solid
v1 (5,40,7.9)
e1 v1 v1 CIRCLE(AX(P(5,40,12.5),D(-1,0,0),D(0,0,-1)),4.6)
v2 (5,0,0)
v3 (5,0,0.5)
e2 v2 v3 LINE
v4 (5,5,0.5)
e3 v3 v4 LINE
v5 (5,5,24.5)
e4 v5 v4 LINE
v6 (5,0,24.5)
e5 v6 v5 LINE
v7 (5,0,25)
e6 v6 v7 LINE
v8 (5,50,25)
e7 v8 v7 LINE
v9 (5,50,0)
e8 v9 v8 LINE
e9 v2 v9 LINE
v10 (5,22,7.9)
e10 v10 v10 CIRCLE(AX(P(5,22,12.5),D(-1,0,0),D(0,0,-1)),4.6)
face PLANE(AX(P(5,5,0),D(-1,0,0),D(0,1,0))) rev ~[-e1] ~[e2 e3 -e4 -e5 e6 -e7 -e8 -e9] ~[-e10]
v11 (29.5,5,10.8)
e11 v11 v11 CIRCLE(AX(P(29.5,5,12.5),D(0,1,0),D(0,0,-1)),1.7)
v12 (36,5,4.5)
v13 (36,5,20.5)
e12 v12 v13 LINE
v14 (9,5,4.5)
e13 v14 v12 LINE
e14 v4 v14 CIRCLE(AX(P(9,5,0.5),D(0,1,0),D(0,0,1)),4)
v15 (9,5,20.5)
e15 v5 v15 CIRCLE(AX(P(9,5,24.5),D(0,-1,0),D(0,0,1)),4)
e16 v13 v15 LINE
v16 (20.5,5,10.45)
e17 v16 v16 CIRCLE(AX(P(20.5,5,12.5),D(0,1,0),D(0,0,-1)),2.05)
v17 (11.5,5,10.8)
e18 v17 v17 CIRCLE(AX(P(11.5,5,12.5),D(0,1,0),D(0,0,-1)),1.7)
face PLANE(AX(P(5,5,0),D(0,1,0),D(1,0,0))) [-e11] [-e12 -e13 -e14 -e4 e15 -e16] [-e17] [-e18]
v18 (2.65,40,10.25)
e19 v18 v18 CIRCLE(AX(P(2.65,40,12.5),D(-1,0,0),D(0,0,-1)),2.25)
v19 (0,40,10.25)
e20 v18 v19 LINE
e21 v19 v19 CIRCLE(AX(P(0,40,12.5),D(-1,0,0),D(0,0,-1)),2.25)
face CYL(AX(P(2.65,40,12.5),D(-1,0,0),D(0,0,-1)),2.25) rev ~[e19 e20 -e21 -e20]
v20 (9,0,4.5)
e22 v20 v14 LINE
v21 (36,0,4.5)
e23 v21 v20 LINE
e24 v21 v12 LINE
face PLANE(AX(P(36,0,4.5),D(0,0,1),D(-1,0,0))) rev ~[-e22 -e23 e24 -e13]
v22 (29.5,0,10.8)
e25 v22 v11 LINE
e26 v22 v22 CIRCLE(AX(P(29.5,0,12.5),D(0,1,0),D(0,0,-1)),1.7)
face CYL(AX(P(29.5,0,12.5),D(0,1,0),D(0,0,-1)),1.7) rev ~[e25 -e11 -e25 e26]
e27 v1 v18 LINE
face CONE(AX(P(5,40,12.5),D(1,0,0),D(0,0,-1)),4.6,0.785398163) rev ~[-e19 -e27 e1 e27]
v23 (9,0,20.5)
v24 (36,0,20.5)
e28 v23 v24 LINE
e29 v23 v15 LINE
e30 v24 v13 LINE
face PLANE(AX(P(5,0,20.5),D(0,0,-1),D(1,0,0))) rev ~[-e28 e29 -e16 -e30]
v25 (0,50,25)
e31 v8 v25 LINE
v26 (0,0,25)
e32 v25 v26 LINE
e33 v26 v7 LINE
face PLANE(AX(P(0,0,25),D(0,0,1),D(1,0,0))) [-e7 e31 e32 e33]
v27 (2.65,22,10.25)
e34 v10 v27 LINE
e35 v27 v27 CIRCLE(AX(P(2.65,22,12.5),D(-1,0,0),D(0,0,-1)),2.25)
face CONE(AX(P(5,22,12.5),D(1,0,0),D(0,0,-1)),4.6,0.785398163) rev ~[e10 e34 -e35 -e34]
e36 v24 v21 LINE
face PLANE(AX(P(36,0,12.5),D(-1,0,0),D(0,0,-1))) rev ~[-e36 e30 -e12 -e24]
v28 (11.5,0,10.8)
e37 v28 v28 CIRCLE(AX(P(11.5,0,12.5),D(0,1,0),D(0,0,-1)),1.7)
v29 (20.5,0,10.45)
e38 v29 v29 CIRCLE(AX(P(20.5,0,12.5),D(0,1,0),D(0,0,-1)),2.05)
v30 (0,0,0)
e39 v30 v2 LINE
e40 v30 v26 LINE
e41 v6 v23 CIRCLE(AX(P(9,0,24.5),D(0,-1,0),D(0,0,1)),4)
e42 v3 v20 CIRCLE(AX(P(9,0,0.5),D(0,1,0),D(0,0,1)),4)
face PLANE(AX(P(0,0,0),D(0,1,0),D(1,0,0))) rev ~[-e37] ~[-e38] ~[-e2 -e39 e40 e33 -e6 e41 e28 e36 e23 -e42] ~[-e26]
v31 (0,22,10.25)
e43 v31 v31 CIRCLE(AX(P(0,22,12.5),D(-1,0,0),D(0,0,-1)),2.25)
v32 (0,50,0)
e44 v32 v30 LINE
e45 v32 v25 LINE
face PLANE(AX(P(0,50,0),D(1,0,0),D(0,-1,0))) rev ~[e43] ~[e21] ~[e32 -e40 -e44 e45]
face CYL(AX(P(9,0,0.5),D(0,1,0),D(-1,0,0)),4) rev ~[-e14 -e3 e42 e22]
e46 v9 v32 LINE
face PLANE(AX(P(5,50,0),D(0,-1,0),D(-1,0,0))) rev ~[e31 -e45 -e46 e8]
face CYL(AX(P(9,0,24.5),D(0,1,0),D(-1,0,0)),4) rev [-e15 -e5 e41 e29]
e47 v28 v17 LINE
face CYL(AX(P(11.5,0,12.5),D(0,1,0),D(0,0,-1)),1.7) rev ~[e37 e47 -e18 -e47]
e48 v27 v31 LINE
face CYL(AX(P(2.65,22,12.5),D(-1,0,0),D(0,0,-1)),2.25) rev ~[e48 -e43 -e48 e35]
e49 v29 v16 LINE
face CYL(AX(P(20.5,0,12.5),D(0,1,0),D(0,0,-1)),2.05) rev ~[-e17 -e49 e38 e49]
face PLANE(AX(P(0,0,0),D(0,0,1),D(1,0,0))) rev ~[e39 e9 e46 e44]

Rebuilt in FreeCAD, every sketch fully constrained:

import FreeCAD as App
import Part
import Sketcher


def edges_at(feature, points):
    """Names of the edges that pass closest to the given points."""
    edges = feature.Shape.Edges
    near = lambda p: min(range(len(edges)), key=lambda i: edges[i].distToShape(Part.Vertex(*p))[0])
    return sorted({f"Edge{near(p) + 1}" for p in points})

doc = App.newDocument("Part")
body = doc.addObject("PartDesign::Body", "Body")

sketch1 = body.newObject("Sketcher::SketchObject", "Sketch")
sketch1.AttachmentSupport = (doc.getObject("XY_Plane"), [""])
sketch1.MapMode = "FlatFace"
sketch1.addGeometry(Part.LineSegment(App.Vector(50, 5, 0), App.Vector(5, 5, 0)), False)
sketch1.addGeometry(Part.LineSegment(App.Vector(5, 5, 0), App.Vector(5, 50, 0)), False)
sketch1.addGeometry(Part.LineSegment(App.Vector(5, 50, 0), App.Vector(0, 50, 0)), False)
sketch1.addGeometry(Part.LineSegment(App.Vector(0, 50, 0), App.Vector(0, 0, 0)), False)
sketch1.addGeometry(Part.LineSegment(App.Vector(0, 0, 0), App.Vector(50, 0, 0)), False)
sketch1.addGeometry(Part.LineSegment(App.Vector(50, 0, 0), App.Vector(50, 5, 0)), False)
sketch1.addConstraint(Sketcher.Constraint("Coincident", 0, 2, 1, 1))
sketch1.addConstraint(Sketcher.Constraint("Coincident", 1, 2, 2, 1))
sketch1.addConstraint(Sketcher.Constraint("Coincident", 2, 2, 3, 1))
sketch1.addConstraint(Sketcher.Constraint("Coincident", 3, 2, 4, 1))
sketch1.addConstraint(Sketcher.Constraint("Coincident", 4, 2, 5, 1))
sketch1.addConstraint(Sketcher.Constraint("Coincident", 5, 2, 0, 1))
sketch1.addConstraint(Sketcher.Constraint("Horizontal", 0))
sketch1.addConstraint(Sketcher.Constraint("Vertical", 1))
sketch1.addConstraint(Sketcher.Constraint("Horizontal", 2))
sketch1.addConstraint(Sketcher.Constraint("Vertical", 3))
sketch1.addConstraint(Sketcher.Constraint("Horizontal", 4))
sketch1.addConstraint(Sketcher.Constraint("Vertical", 5))
sketch1.addConstraint(Sketcher.Constraint("Coincident", 3, 2, -1, 1))
sketch1.addConstraint(Sketcher.Constraint("Equal", 0, 1))
sketch1.addConstraint(Sketcher.Constraint("Equal", 4, 3))
sketch1.addConstraint(Sketcher.Constraint("DistanceX", 2, 2, 2, 1, 5.0))
sketch1.addConstraint(Sketcher.Constraint("DistanceX", 4, 1, 4, 2, 50.0))
pad1 = body.newObject("PartDesign::Pad", "Pad")
pad1.Profile = sketch1
pad1.Length = 25

sketch2 = body.newObject("Sketcher::SketchObject", "Sketch001")
sketch2.AttachmentSupport = (doc.getObject("XZ_Plane"), [""])
sketch2.MapMode = "FlatFace"
sketch2.addGeometry(Part.LineSegment(App.Vector(5, 0, 0), App.Vector(50, 0, 0)), False)
sketch2.addGeometry(Part.LineSegment(App.Vector(50, 0, 0), App.Vector(50, 25, 0)), False)
sketch2.addGeometry(Part.LineSegment(App.Vector(50, 25, 0), App.Vector(5, 25, 0)), False)
sketch2.addGeometry(Part.LineSegment(App.Vector(5, 25, 0), App.Vector(5, 20.5, 0)), False)
sketch2.addGeometry(Part.LineSegment(App.Vector(5, 20.5, 0), App.Vector(36, 20.5, 0)), False)
sketch2.addGeometry(Part.LineSegment(App.Vector(36, 20.5, 0), App.Vector(36, 4.5, 0)), False)
sketch2.addGeometry(Part.LineSegment(App.Vector(36, 4.5, 0), App.Vector(5, 4.5, 0)), False)
sketch2.addGeometry(Part.LineSegment(App.Vector(5, 4.5, 0), App.Vector(5, 0, 0)), False)
sketch2.addConstraint(Sketcher.Constraint("Coincident", 0, 2, 1, 1))
sketch2.addConstraint(Sketcher.Constraint("Coincident", 1, 2, 2, 1))
sketch2.addConstraint(Sketcher.Constraint("Coincident", 2, 2, 3, 1))
sketch2.addConstraint(Sketcher.Constraint("Coincident", 3, 2, 4, 1))
sketch2.addConstraint(Sketcher.Constraint("Coincident", 4, 2, 5, 1))
sketch2.addConstraint(Sketcher.Constraint("Coincident", 5, 2, 6, 1))
sketch2.addConstraint(Sketcher.Constraint("Coincident", 6, 2, 7, 1))
sketch2.addConstraint(Sketcher.Constraint("Coincident", 7, 2, 0, 1))
sketch2.addConstraint(Sketcher.Constraint("Horizontal", 0))
sketch2.addConstraint(Sketcher.Constraint("Vertical", 1))
sketch2.addConstraint(Sketcher.Constraint("Horizontal", 2))
sketch2.addConstraint(Sketcher.Constraint("Vertical", 3))
sketch2.addConstraint(Sketcher.Constraint("Horizontal", 4))
sketch2.addConstraint(Sketcher.Constraint("Vertical", 5))
sketch2.addConstraint(Sketcher.Constraint("Horizontal", 6))
sketch2.addConstraint(Sketcher.Constraint("Vertical", 7))
sketch2.addConstraint(Sketcher.Constraint("PointOnObject", 0, 2, -1))
sketch2.addConstraint(Sketcher.Constraint("Vertical", 3, 2, 6, 2))
sketch2.addConstraint(Sketcher.Constraint("Equal", 3, 7))
sketch2.addConstraint(Sketcher.Constraint("DistanceY", 5, 2, 5, 1, 16.0))
sketch2.addConstraint(Sketcher.Constraint("DistanceX", -1, 1, 4, 2, 36.0))
sketch2.addConstraint(Sketcher.Constraint("DistanceX", 0, 1, 0, 2, 45.0))
sketch2.addConstraint(Sketcher.Constraint("DistanceX", 4, 1, 4, 2, 31.0))
sketch2.addConstraint(Sketcher.Constraint("DistanceY", 1, 1, 1, 2, 25.0))
pocket1 = body.newObject("PartDesign::Pocket", "Pocket")
pocket1.Profile = sketch2
pocket1.Type = "ThroughAll"

sketch3 = body.newObject("Sketcher::SketchObject", "Sketch002")
sketch3.AttachmentSupport = (doc.getObject("XZ_Plane"), [""])
sketch3.MapMode = "FlatFace"
sketch3.addGeometry(Part.Circle(App.Vector(20.5, 12.5, 0), App.Vector(0, 0, 1), 2), False)
sketch3.addConstraint(Sketcher.Constraint("Diameter", 0, 4.1))
sketch3.addConstraint(Sketcher.Constraint("DistanceX", -1, 1, 0, 3, 20.5))
sketch3.addConstraint(Sketcher.Constraint("DistanceY", -1, 1, 0, 3, 12.5))
doc.recompute()
hole = body.newObject("PartDesign::Hole", "Hole")
hole.Profile = sketch3
hole.ThreadType = "None"
hole.Diameter = 4.1
hole.DepthType = "ThroughAll"

sketch4 = body.newObject("Sketcher::SketchObject", "Sketch003")
sketch4.AttachmentSupport = (doc.getObject("XZ_Plane"), [""])
sketch4.MapMode = "FlatFace"
sketch4.addGeometry(Part.Circle(App.Vector(11.5, 12.5, 0), App.Vector(0, 0, 1), 1.7), False)
sketch4.addGeometry(Part.Circle(App.Vector(29.5, 12.5, 0), App.Vector(0, 0, 1), 1.7), False)
sketch4.addConstraint(Sketcher.Constraint("Equal", 0, 1))
sketch4.addConstraint(Sketcher.Constraint("Horizontal", 0, 3, 1, 3))
sketch4.addConstraint(Sketcher.Constraint("Diameter", 0, 3.4))
sketch4.addConstraint(Sketcher.Constraint("DistanceX", 0, 3, 1, 3, 18.0))
sketch4.addConstraint(Sketcher.Constraint("DistanceX", -1, 1, 0, 3, 11.5))
sketch4.addConstraint(Sketcher.Constraint("DistanceY", -1, 1, 0, 3, 12.5))
doc.recompute()
hole2 = body.newObject("PartDesign::Hole", "Hole001")
hole2.Profile = sketch4
hole2.ThreadType = "None"
hole2.Diameter = 3.4
hole2.DepthType = "ThroughAll"
doc.recompute()

fillet = body.newObject("PartDesign::Fillet", "Fillet")
fillet.Base = (hole2, edges_at(hole2, [(5, 2.5, 20.5), (5, 2.5, 4.5)]))
fillet.Radius = 4

sketch5 = body.newObject("Sketcher::SketchObject", "Sketch004")
sketch5.AttachmentSupport = (doc.getObject("YZ_Plane"), [""])
sketch5.MapMode = "FlatFace"
sketch5.AttachmentOffset = App.Placement(App.Vector(0, 0, 5), App.Rotation())
sketch5.addGeometry(Part.Circle(App.Vector(40, 12.5, 0), App.Vector(0, 0, 1), 2.2), False)
sketch5.addGeometry(Part.Circle(App.Vector(22, 12.5, 0), App.Vector(0, 0, 1), 2.2), False)
sketch5.addConstraint(Sketcher.Constraint("Equal", 0, 1))
sketch5.addConstraint(Sketcher.Constraint("Horizontal", 0, 3, 1, 3))
sketch5.addConstraint(Sketcher.Constraint("Diameter", 0, 4.5))
sketch5.addConstraint(Sketcher.Constraint("DistanceX", -1, 1, 0, 3, 40.0))
sketch5.addConstraint(Sketcher.Constraint("DistanceX", -1, 1, 1, 3, 22.0))
sketch5.addConstraint(Sketcher.Constraint("DistanceY", -1, 1, 0, 3, 12.5))
doc.recompute()
hole3 = body.newObject("PartDesign::Hole", "Hole002")
hole3.Profile = sketch5
hole3.ThreadType = "None"
hole3.Diameter = 4.5
hole3.DepthType = "ThroughAll"
hole3.HoleCutType = "Countersink"
hole3.HoleCutDiameter = 9.2
hole3.HoleCutCountersinkAngle = 90

doc.recompute()
